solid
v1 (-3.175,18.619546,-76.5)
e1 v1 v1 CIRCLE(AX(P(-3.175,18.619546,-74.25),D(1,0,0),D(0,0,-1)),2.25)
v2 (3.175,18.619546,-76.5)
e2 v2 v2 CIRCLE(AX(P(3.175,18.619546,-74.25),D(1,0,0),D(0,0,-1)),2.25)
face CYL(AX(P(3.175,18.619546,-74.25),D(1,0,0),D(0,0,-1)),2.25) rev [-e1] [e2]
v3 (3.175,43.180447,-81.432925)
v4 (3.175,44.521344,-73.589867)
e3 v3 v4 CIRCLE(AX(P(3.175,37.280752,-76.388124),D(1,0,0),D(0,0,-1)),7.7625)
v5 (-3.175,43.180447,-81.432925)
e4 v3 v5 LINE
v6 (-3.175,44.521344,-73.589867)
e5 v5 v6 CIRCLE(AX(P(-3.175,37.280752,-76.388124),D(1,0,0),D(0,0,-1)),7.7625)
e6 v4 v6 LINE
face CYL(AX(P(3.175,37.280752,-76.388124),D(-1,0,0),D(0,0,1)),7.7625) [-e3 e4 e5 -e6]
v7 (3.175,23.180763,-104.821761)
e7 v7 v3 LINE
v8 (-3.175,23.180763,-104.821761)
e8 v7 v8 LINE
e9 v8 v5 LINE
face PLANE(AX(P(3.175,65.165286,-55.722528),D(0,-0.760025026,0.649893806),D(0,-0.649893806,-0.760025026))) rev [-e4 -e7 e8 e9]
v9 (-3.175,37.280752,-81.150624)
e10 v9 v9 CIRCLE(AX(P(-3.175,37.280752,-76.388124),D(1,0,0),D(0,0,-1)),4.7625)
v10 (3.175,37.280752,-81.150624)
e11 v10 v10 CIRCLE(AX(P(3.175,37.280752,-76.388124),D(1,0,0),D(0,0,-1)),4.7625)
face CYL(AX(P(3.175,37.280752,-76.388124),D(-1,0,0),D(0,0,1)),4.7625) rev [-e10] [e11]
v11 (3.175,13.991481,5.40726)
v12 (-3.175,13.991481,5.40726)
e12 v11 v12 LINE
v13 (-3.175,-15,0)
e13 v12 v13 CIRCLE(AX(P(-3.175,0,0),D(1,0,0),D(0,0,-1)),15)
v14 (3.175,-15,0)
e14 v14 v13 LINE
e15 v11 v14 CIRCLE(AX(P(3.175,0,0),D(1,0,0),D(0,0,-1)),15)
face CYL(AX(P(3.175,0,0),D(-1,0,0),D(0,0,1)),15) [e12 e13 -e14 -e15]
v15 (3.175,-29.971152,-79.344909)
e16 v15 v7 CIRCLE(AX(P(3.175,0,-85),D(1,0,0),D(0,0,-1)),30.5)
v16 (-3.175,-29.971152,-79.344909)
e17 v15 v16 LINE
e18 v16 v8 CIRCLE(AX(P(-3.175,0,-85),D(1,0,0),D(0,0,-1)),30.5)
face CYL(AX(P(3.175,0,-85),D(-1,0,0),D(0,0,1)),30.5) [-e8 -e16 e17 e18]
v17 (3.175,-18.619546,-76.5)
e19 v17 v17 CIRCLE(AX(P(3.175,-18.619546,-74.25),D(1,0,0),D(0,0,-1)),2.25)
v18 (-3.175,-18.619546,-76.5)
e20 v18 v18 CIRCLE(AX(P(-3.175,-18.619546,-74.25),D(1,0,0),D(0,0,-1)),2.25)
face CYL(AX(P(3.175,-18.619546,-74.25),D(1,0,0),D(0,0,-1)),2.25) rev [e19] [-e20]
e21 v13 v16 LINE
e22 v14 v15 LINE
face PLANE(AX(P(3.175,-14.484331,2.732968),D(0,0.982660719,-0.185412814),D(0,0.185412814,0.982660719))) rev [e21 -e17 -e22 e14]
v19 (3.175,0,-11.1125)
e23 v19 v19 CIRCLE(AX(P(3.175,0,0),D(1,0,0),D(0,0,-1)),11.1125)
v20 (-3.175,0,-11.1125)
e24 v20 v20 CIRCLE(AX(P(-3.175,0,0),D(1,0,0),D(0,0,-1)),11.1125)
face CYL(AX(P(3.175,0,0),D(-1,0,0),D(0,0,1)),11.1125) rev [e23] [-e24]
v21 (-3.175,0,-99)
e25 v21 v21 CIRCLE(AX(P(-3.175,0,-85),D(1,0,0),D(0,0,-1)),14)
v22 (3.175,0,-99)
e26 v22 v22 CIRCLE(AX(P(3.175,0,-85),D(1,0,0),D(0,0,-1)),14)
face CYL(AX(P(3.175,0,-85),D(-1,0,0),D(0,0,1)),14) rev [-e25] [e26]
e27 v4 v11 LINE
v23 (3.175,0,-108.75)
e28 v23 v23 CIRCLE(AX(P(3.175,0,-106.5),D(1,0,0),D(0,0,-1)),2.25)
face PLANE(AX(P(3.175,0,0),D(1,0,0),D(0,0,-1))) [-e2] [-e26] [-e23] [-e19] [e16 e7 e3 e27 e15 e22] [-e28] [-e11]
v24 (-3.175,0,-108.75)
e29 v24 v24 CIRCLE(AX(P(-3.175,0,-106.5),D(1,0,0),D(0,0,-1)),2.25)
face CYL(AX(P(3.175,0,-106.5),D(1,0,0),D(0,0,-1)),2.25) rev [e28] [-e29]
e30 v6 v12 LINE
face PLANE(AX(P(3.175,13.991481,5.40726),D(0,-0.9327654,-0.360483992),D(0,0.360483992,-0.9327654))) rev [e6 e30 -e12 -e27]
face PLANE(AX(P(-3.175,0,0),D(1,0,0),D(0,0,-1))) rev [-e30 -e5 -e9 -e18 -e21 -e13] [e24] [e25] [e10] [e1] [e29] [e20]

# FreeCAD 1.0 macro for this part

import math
import FreeCAD as App
import Part
import Sketcher

V = App.Vector

doc = App.newDocument("Part")
params = doc.addObject("Spreadsheet::Sheet", "Params")
for row, (alias, value) in enumerate([
    ("sketch1_diameter", "28 mm"),
    ("sketch1_radius", "15 mm"),
    ("sketch1_radius2", "30.5 mm"),
    ("pad1_length", "6.35 mm"),
    ("sketch2_diameter", "4.5 mm"),
    ("hole_diameter", "4.5 mm"),
], start=1):
    params.set(f"A{row}", alias)
    params.set(f"B{row}", "=" + value)
    params.setAlias(f"B{row}", alias)

body = doc.addObject("PartDesign::Body", "Body")

# Sketch on YZ plane
sketch1 = body.newObject("Sketcher::SketchObject", "Sketch")
sketch1.AttachmentSupport = (doc.getObject("YZ_Plane"), [""])
sketch1.MapMode = "FlatFace"
sketch1.addGeometry([
    Part.ArcOfCircle(Part.Circle(V(37.3, -76.4, 0), V(0, 0, 1), 7.8), math.radians(-41), math.radians(21)),  # 0
    Part.LineSegment(V(44.5, -73.6, 0), V(14, 5.4, 0)),  # 1
    Part.ArcOfCircle(Part.Circle(V(0, 0, 0), V(0, 0, 1), 15), math.radians(21), math.radians(180)),  # 2
    Part.LineSegment(V(-15, 0, 0), V(-30, -79.3, 0)),  # 3
    Part.ArcOfCircle(Part.Circle(V(0, -85, 0), V(0, 0, 1), 30.5), math.radians(169), math.radians(319)),  # 4
    Part.LineSegment(V(23.2, -104.8, 0), V(43.2, -81.4, 0)),  # 5
    Part.Circle(V(0, 0, 0), V(0, 0, 1), 11.1),  # 6
    Part.Circle(V(0, -85, 0), V(0, 0, 1), 14),  # 7
    Part.Circle(V(37.3, -76.4, 0), V(0, 0, 1), 4.8),  # 8
], False)
sketch1.addConstraint([
    Sketcher.Constraint("Tangent", 0, 2, 1, 1),
    Sketcher.Constraint("Tangent", 1, 2, 2, 1),
    Sketcher.Constraint("Coincident", 2, 2, 3, 1),
    Sketcher.Constraint("Tangent", 3, 2, 4, 1),
    Sketcher.Constraint("Tangent", 4, 2, 5, 1),
    Sketcher.Constraint("Tangent", 5, 2, 0, 1),
    Sketcher.Constraint("Coincident", 2, 3, -1, 1),
    Sketcher.Constraint("Coincident", 6, 3, -1, 1),
    Sketcher.Constraint("Coincident", 7, 3, 4, 3),
    Sketcher.Constraint("Coincident", 8, 3, 0, 3),
    Sketcher.Constraint("PointOnObject", 4, 3, -2),
    Sketcher.Constraint("PointOnObject", 2, 2, -1),
    Sketcher.Constraint("Diameter", 7, 28.0),
    Sketcher.Constraint("Radius", 2, 15.0),
    Sketcher.Constraint("Radius", 4, 30.5),
    Sketcher.Constraint("Diameter", 6, 22.225),
    Sketcher.Constraint("Diameter", 8, 9.525),
    Sketcher.Constraint("DistanceY", 4, 3, -1, 1, 85.0),
    Sketcher.Constraint("Radius", 0, 7.7625),
    Sketcher.Constraint("DistanceY", 5, 2, 8, 3, 5.044801),
    Sketcher.Constraint("Distance", 5, 30.773771),
])
sketch1.setExpression("Constraints[12]", "Params.sketch1_diameter")
sketch1.setExpression("Constraints[13]", "Params.sketch1_radius")
sketch1.setExpression("Constraints[14]", "Params.sketch1_radius2")
pad1 = body.newObject("PartDesign::Pad", "Pad")
pad1.Profile = sketch1
pad1.setExpression("Length", "Params.pad1_length")
pad1.Midplane = True

# Sketch on YZ plane
sketch2 = body.newObject("Sketcher::SketchObject", "Sketch001")
sketch2.AttachmentSupport = (doc.getObject("YZ_Plane"), [""])
sketch2.MapMode = "FlatFace"
sketch2.AttachmentOffset = App.Placement(V(0, 0, 3.175), App.Rotation())
sketch2.addGeometry([
    Part.Circle(V(18.6, -74.2, 0), V(0, 0, 1), 2.2),
    Part.Circle(V(0, -106.5, 0), V(0, 0, 1), 2.2),
    Part.Circle(V(-18.6, -74.2, 0), V(0, 0, 1), 2.2),
], False)
sketch2.addConstraint([
    Sketcher.Constraint("Equal", 0, 1),
    Sketcher.Constraint("Equal", 1, 2),
    Sketcher.Constraint("Symmetric", 0, 3, 2, 3, -2),
    Sketcher.Constraint("PointOnObject", 1, 3, -2),
    Sketcher.Constraint("Diameter", 0, 4.5),
    Sketcher.Constraint("DistanceY", 1, 3, -1, 1, 106.5),
    Sketcher.Constraint("DistanceY", 0, 3, -1, 1, 74.25),
    Sketcher.Constraint("DistanceX", -1, 1, 0, 3, 18.619546),
])
sketch2.setExpression("Constraints[4]", "Params.sketch2_diameter")
doc.recompute()
hole = body.newObject("PartDesign::Hole", "Hole")
hole.Profile = sketch2
hole.ThreadType = "None"
hole.setExpression("Diameter", "Params.hole_diameter")
hole.DepthType = "ThroughAll"

doc.recompute()
